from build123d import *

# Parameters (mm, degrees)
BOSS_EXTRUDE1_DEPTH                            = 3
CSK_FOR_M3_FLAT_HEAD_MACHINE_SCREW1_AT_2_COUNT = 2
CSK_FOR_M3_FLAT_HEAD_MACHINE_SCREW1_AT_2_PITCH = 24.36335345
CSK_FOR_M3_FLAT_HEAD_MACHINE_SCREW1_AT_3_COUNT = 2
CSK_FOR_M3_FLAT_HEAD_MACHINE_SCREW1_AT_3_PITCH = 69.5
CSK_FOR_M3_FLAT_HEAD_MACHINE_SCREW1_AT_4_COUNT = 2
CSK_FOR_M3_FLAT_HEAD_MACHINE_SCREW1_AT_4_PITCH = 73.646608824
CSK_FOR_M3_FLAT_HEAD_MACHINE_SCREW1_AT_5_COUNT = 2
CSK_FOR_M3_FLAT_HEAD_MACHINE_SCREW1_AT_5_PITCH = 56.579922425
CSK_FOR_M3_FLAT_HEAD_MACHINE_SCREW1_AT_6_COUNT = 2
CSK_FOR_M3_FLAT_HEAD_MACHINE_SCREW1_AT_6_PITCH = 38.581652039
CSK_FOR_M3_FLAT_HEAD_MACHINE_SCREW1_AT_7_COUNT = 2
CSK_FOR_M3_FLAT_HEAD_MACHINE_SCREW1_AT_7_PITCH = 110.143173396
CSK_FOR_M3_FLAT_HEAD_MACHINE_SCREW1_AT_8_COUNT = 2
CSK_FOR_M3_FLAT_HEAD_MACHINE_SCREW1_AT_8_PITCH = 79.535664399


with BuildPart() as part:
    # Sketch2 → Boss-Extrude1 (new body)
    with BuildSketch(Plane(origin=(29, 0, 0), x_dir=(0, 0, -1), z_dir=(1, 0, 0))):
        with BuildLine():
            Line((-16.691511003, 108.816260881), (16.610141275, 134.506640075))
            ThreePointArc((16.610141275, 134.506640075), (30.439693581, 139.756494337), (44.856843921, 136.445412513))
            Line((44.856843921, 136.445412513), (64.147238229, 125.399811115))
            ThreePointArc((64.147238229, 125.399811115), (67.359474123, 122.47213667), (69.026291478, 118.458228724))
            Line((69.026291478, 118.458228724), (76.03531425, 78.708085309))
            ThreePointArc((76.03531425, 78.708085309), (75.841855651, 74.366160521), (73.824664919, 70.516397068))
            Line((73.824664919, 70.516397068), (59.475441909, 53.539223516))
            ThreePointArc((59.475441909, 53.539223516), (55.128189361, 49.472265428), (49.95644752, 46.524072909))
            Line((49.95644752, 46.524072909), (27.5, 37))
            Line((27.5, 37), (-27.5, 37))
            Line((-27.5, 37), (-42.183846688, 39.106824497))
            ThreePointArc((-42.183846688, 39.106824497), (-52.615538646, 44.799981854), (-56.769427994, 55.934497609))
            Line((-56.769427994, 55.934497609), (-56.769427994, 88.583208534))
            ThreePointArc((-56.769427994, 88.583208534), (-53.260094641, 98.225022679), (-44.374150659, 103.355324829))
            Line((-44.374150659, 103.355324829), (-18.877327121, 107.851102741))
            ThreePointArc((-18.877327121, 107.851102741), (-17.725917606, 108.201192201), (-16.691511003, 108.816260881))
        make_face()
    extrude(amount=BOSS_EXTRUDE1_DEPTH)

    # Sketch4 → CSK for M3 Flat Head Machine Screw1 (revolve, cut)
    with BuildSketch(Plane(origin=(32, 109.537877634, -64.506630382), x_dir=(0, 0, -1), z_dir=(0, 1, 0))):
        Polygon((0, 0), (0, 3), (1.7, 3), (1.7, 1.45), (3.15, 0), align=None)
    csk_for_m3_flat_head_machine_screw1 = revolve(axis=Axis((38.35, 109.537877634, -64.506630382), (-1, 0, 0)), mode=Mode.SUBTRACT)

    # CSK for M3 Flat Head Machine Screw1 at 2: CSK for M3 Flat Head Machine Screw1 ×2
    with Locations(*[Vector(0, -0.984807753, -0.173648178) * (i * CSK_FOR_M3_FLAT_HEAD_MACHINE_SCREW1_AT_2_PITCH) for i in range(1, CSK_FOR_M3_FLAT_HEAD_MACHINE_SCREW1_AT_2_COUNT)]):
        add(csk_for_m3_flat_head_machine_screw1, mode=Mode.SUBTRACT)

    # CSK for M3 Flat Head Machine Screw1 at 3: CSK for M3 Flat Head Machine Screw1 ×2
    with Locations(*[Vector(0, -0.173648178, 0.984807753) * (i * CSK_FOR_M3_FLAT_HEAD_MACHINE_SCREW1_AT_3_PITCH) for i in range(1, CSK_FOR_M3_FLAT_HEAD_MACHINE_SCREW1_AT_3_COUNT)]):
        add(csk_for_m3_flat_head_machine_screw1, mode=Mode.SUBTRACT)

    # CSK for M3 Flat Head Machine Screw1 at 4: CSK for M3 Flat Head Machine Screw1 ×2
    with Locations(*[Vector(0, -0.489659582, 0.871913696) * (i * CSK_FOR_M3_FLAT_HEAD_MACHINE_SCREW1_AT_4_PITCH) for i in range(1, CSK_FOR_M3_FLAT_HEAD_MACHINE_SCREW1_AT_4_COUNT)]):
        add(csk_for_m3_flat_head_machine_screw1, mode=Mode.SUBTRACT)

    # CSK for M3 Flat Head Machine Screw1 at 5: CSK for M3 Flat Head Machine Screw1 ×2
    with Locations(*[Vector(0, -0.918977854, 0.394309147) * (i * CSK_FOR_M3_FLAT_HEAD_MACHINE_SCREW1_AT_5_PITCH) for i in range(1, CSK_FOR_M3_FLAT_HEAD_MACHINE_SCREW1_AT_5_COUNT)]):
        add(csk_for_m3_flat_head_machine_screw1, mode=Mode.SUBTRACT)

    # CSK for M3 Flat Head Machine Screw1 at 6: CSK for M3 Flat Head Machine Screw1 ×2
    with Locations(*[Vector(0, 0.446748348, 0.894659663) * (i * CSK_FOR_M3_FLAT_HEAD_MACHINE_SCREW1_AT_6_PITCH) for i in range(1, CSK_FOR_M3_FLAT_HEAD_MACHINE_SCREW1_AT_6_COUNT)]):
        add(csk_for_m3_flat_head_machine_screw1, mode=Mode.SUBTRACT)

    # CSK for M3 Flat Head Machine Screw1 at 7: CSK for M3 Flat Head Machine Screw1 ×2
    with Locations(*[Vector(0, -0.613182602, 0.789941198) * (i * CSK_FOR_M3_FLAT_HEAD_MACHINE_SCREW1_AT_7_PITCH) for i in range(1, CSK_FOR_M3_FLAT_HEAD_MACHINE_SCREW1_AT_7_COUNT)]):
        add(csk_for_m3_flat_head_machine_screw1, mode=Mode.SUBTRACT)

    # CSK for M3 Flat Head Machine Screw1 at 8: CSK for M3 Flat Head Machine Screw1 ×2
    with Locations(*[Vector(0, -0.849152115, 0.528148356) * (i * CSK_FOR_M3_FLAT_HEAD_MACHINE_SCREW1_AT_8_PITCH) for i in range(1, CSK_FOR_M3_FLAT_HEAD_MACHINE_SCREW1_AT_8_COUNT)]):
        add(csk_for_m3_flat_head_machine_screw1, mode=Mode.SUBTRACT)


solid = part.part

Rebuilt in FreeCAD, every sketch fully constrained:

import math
import FreeCAD as App
import Part
import Sketcher
from FreeCAD import Vector
Q = App.Units.Quantity

doc = App.newDocument("Part")
body = doc.addObject("PartDesign::Body", "Body")

sketch1 = body.newObject("Sketcher::SketchObject", "Sketch")
sketch1.AttachmentSupport = (doc.getObject("YZ_Plane"), [""])
sketch1.MapMode = "FlatFace"
sketch1.AttachmentOffset = App.Placement(Vector(0, 0, 29), App.Rotation())
sketch1.addGeometry(Part.LineSegment(Vector(134.5, -16.6, 0), Vector(108.8, 16.7, 0)), False)
sketch1.addGeometry(Part.ArcOfCircle(Part.Circle(Vector(112.8, 19.7, 0), Vector(0, 0, 1), 5), math.radians(-170), math.radians(-142)), False)
sketch1.addGeometry(Part.LineSegment(Vector(107.9, 18.9, 0), Vector(103.4, 44.4, 0)), False)
sketch1.addGeometry(Part.ArcOfCircle(Part.Circle(Vector(88.6, 41.8, 0), Vector(0, 0, 1), 15), math.radians(10), math.radians(90)), False)
sketch1.addGeometry(Part.LineSegment(Vector(88.6, 56.8, 0), Vector(55.9, 56.8, 0)), False)
sketch1.addGeometry(Part.ArcOfCircle(Part.Circle(Vector(55.9, 39.8, 0), Vector(0, 0, 1), 17), math.radians(90), math.radians(172)), False)
sketch1.addGeometry(Part.LineSegment(Vector(39.1, 42.2, 0), Vector(37, 27.5, 0)), False)
sketch1.addGeometry(Part.LineSegment(Vector(37, 27.5, 0), Vector(37, -27.5, 0)), False)
sketch1.addGeometry(Part.LineSegment(Vector(37, -27.5, 0), Vector(46.5, -50, 0)), False)
sketch1.addGeometry(Part.ArcOfCircle(Part.Circle(Vector(70, -40, 0), Vector(0, 0, 1), 25.5), math.radians(-157), math.radians(-130)), False)
sketch1.addGeometry(Part.LineSegment(Vector(53.5, -59.5, 0), Vector(70.5, -73.8, 0)), False)
sketch1.addGeometry(Part.ArcOfCircle(Part.Circle(Vector(77, -66.2, 0), Vector(0, 0, 1), 10), math.radians(-130), math.radians(-80)), False)
sketch1.addGeometry(Part.LineSegment(Vector(78.7, -76, 0), Vector(118.5, -69, 0)), False)
sketch1.addGeometry(Part.ArcOfCircle(Part.Circle(Vector(116.7, -59.2, 0), Vector(0, 0, 1), 10), math.radians(-80), math.radians(-30)), False)
sketch1.addGeometry(Part.LineSegment(Vector(125.4, -64.1, 0), Vector(136.4, -44.9, 0)), False)
sketch1.addGeometry(Part.ArcOfCircle(Part.Circle(Vector(114.3, -32.2, 0), Vector(0, 0, 1), 25.5), math.radians(-30), math.radians(38)), False)
sketch1.addConstraint(Sketcher.Constraint("Tangent", 0, 2, 1, 2))
sketch1.addConstraint(Sketcher.Constraint("Tangent", 1, 1, 2, 1))
sketch1.addConstraint(Sketcher.Constraint("Tangent", 2, 2, 3, 1))
sketch1.addConstraint(Sketcher.Constraint("Tangent", 3, 2, 4, 1))
sketch1.addConstraint(Sketcher.Constraint("Tangent", 4, 2, 5, 1))
sketch1.addConstraint(Sketcher.Constraint("Tangent", 5, 2, 6, 1))
sketch1.addConstraint(Sketcher.Constraint("Coincident", 6, 2, 7, 1))
sketch1.addConstraint(Sketcher.Constraint("Coincident", 7, 2, 8, 1))
sketch1.addConstraint(Sketcher.Constraint("Tangent", 8, 2, 9, 1))
sketch1.addConstraint(Sketcher.Constraint("Tangent", 9, 2, 10, 1))
sketch1.addConstraint(Sketcher.Constraint("Tangent", 10, 2, 11, 1))
sketch1.addConstraint(Sketcher.Constraint("Tangent", 11, 2, 12, 1))
sketch1.addConstraint(Sketcher.Constraint("Tangent", 12, 2, 13, 1))
sketch1.addConstraint(Sketcher.Constraint("Tangent", 13, 2, 14, 1))
sketch1.addConstraint(Sketcher.Constraint("Tangent", 14, 2, 15, 1))
sketch1.addConstraint(Sketcher.Constraint("Tangent", 15, 2, 0, 1))
sketch1.addConstraint(Sketcher.Constraint("Horizontal", 4))
sketch1.addConstraint(Sketcher.Constraint("Vertical", 7))
sketch1.addConstraint(Sketcher.Constraint("Equal", 11, 13))
sketch1.addConstraint(Sketcher.Constraint("Equal", 9, 15))
sketch1.addConstraint(Sketcher.Constraint("Perpendicular", 2, 12))
sketch1.addConstraint(Sketcher.Constraint("Equal", 10, 14))
sketch1.addConstraint(Sketcher.Constraint("Radius", 1, Q("5 mm")))
sketch1.addConstraint(Sketcher.Constraint("Radius", 3, Q("15 mm")))
sketch1.addConstraint(Sketcher.Constraint("Radius", 5, Q("17 mm")))
sketch1.addConstraint(Sketcher.Constraint("Radius", 11, Q("10 mm")))
sketch1.addConstraint(Sketcher.Constraint("Radius", 9, Q("25.5 mm")))
sketch1.addConstraint(Sketcher.Constraint("DistanceY", 7, 2, 7, 1, Q("55 mm")))
sketch1.addConstraint(Sketcher.Constraint("Angle", 2, Q("100 deg")))
sketch1.addConstraint(Sketcher.Constraint("DistanceX", -1, 1, 9, 3, Q("70 mm")))
sketch1.addConstraint(Sketcher.Constraint("DistanceY", 9, 3, -1, 1, Q("40 mm")))
sketch1.addConstraint(Sketcher.Constraint("DistanceX", -1, 1, 6, 2, Q("37 mm")))
sketch1.addConstraint(Sketcher.Constraint("DistanceY", -1, 1, 6, 2, Q("27.5 mm")))
sketch1.addConstraint(Sketcher.Constraint("DistanceY", 11, 3, 13, 2, Q("2.039998 mm")))
sketch1.addConstraint(Sketcher.Constraint("DistanceX", 4, 2, 4, 1, Q("32.648711 mm")))
sketch1.addConstraint(Sketcher.Constraint("DistanceX", 15, 3, 13, 3, Q("2.405398 mm")))
sketch1.addConstraint(Sketcher.Constraint("DistanceY", 15, 3, 1, 3, Q("51.9314 mm")))
sketch1.addConstraint(Sketcher.Constraint("DistanceY", 1, 1, 3, 3, Q("22.892101 mm")))
sketch1.addConstraint(Sketcher.Constraint("DistanceX", 5, 2, 2, 2, Q("64.2485 mm")))
sketch1.addConstraint(Sketcher.Constraint("DistanceX", 13, 2, 14, 2, Q("11.045601 mm")))
sketch1.addConstraint(Sketcher.Constraint("DistanceX", 1, 3, 15, 2, Q("21.731499 mm")))
pad1 = body.newObject("PartDesign::Pad", "Pad")
pad1.Profile = sketch1
pad1.Length = 3

sketch2 = body.newObject("Sketcher::SketchObject", "Sketch001")
sketch2.AttachmentSupport = (doc.getObject("XZ_Plane"), [""])
sketch2.MapMode = "FlatFace"
sketch2.AttachmentOffset = App.Placement(Vector(0, 0, -109.537878), App.Rotation())
sketch2.addGeometry(Part.LineSegment(Vector(29, -64.5, 0), Vector(32, -64.5, 0)), False)
sketch2.addGeometry(Part.LineSegment(Vector(32, -64.5, 0), Vector(32, -67.7, 0)), False)
sketch2.addGeometry(Part.LineSegment(Vector(32, -67.7, 0), Vector(30.6, -66.2, 0)), False)
sketch2.addGeometry(Part.LineSegment(Vector(30.6, -66.2, 0), Vector(29, -66.2, 0)), False)
sketch2.addGeometry(Part.LineSegment(Vector(29, -66.2, 0), Vector(29, -64.5, 0)), False)
sketch2.addGeometry(Part.LineSegment(Vector(32, -64.5, 0), Vector(29, -64.5, 0)), True)
sketch2.addConstraint(Sketcher.Constraint("Coincident", 0, 2, 1, 1))
sketch2.addConstraint(Sketcher.Constraint("Coincident", 1, 2, 2, 1))
sketch2.addConstraint(Sketcher.Constraint("Coincident", 2, 2, 3, 1))
sketch2.addConstraint(Sketcher.Constraint("Coincident", 3, 2, 4, 1))
sketch2.addConstraint(Sketcher.Constraint("Coincident", 4, 2, 0, 1))
sketch2.addConstraint(Sketcher.Constraint("Horizontal", 0))
sketch2.addConstraint(Sketcher.Constraint("Vertical", 1))
sketch2.addConstraint(Sketcher.Constraint("Horizontal", 3))
sketch2.addConstraint(Sketcher.Constraint("Vertical", 4))
sketch2.addConstraint(Sketcher.Constraint("Horizontal", 5))
sketch2.addConstraint(Sketcher.Constraint("Coincident", 5, 1, 0, 2))
sketch2.addConstraint(Sketcher.Constraint("Vertical", 3, 2, 5, 2))
sketch2.addConstraint(Sketcher.Constraint("DistanceX", 0, 1, 0, 2, Q("3 mm")))
sketch2.addConstraint(Sketcher.Constraint("Angle", 2, Q("135 deg")))
sketch2.addConstraint(Sketcher.Constraint("DistanceY", 4, 1, 4, 2, Q("1.7 mm")))
sketch2.addConstraint(Sketcher.Constraint("DistanceX", -1, 1, 0, 2, Q("32 mm")))
sketch2.addConstraint(Sketcher.Constraint("DistanceX", 3, 2, 3, 1, Q("1.55 mm")))
sketch2.addConstraint(Sketcher.Constraint("DistanceY", 0, 2, -1, 1, Q("64.50663 mm")))
groove = body.newObject("PartDesign::Groove", "Groove")
groove.Profile = sketch2
groove.ReferenceAxis = (sketch2, ["Axis0"])
groove.Angle = 360
doc.recompute()

datumline = body.newObject("PartDesign::Line", "DatumLine")
datumline.Placement = App.Placement(Vector(0, 0, 0), App.Rotation(Vector(0, 0, 1), Vector(0, -0.984807753, -0.173648178)))
linearpattern = body.newObject("PartDesign::LinearPattern", "LinearPattern")
linearpattern.Originals = [groove]
linearpattern.Direction = (datumline, [""])
linearpattern.Mode = "offset"
linearpattern.Offset = 24.363353
linearpattern.Occurrences = 2
body.Tip = linearpattern
doc.recompute()

datumline2 = body.newObject("PartDesign::Line", "DatumLine001")
datumline2.Placement = App.Placement(Vector(0, 0, 0), App.Rotation(Vector(0, 0, 1), Vector(0, -0.173648178, 0.984807753)))
linearpattern2 = body.newObject("PartDesign::LinearPattern", "LinearPattern001")
linearpattern2.Originals = [groove]
linearpattern2.Direction = (datumline2, [""])
linearpattern2.Mode = "offset"
linearpattern2.Offset = 69.5
linearpattern2.Occurrences = 2
body.Tip = linearpattern2
doc.recompute()

datumline3 = body.newObject("PartDesign::Line", "DatumLine002")
datumline3.Placement = App.Placement(Vector(0, 0, 0), App.Rotation(Vector(0, 0, 1), Vector(0, -0.489659582, 0.871913696)))
linearpattern3 = body.newObject("PartDesign::LinearPattern", "LinearPattern002")
linearpattern3.Originals = [groove]
linearpattern3.Direction = (datumline3, [""])
linearpattern3.Mode = "offset"
linearpattern3.Offset = 73.646609
linearpattern3.Occurrences = 2
body.Tip = linearpattern3
doc.recompute()

datumline4 = body.newObject("PartDesign::Line", "DatumLine003")
datumline4.Placement = App.Placement(Vector(0, 0, 0), App.Rotation(Vector(0, 0, 1), Vector(0, -0.918977854, 0.394309147)))
linearpattern4 = body.newObject("PartDesign::LinearPattern", "LinearPattern003")
linearpattern4.Originals = [groove]
linearpattern4.Direction = (datumline4, [""])
linearpattern4.Mode = "offset"
linearpattern4.Offset = 56.579922
linearpattern4.Occurrences = 2
body.Tip = linearpattern4
doc.recompute()

datumline5 = body.newObject("PartDesign::Line", "DatumLine004")
datumline5.Placement = App.Placement(Vector(0, 0, 0), App.Rotation(Vector(0, 0, 1), Vector(0, 0.446748348, 0.894659663)))
linearpattern5 = body.newObject("PartDesign::LinearPattern", "LinearPattern004")
linearpattern5.Originals = [groove]
linearpattern5.Direction = (datumline5, [""])
linearpattern5.Mode = "offset"
linearpattern5.Offset = 38.581652
linearpattern5.Occurrences = 2
body.Tip = linearpattern5
doc.recompute()

datumline6 = body.newObject("PartDesign::Line", "DatumLine005")
datumline6.Placement = App.Placement(Vector(0, 0, 0), App.Rotation(Vector(0, 0, 1), Vector(0, -0.613182602, 0.789941198)))
linearpattern6 = body.newObject("PartDesign::LinearPattern", "LinearPattern005")
linearpattern6.Originals = [groove]
linearpattern6.Direction = (datumline6, [""])
linearpattern6.Mode = "offset"
linearpattern6.Offset = 110.143173
linearpattern6.Occurrences = 2
body.Tip = linearpattern6
doc.recompute()

datumline7 = body.newObject("PartDesign::Line", "DatumLine006")
datumline7.Placement = App.Placement(Vector(0, 0, 0), App.Rotation(Vector(0, 0, 1), Vector(0, -0.849152115, 0.528148356)))
linearpattern7 = body.newObject("PartDesign::LinearPattern", "LinearPattern006")
linearpattern7.Originals = [groove]
linearpattern7.Direction = (datumline7, [""])
linearpattern7.Mode = "offset"
linearpattern7.Offset = 79.535664
linearpattern7.Occurrences = 2
body.Tip = linearpattern7

doc.recompute()
